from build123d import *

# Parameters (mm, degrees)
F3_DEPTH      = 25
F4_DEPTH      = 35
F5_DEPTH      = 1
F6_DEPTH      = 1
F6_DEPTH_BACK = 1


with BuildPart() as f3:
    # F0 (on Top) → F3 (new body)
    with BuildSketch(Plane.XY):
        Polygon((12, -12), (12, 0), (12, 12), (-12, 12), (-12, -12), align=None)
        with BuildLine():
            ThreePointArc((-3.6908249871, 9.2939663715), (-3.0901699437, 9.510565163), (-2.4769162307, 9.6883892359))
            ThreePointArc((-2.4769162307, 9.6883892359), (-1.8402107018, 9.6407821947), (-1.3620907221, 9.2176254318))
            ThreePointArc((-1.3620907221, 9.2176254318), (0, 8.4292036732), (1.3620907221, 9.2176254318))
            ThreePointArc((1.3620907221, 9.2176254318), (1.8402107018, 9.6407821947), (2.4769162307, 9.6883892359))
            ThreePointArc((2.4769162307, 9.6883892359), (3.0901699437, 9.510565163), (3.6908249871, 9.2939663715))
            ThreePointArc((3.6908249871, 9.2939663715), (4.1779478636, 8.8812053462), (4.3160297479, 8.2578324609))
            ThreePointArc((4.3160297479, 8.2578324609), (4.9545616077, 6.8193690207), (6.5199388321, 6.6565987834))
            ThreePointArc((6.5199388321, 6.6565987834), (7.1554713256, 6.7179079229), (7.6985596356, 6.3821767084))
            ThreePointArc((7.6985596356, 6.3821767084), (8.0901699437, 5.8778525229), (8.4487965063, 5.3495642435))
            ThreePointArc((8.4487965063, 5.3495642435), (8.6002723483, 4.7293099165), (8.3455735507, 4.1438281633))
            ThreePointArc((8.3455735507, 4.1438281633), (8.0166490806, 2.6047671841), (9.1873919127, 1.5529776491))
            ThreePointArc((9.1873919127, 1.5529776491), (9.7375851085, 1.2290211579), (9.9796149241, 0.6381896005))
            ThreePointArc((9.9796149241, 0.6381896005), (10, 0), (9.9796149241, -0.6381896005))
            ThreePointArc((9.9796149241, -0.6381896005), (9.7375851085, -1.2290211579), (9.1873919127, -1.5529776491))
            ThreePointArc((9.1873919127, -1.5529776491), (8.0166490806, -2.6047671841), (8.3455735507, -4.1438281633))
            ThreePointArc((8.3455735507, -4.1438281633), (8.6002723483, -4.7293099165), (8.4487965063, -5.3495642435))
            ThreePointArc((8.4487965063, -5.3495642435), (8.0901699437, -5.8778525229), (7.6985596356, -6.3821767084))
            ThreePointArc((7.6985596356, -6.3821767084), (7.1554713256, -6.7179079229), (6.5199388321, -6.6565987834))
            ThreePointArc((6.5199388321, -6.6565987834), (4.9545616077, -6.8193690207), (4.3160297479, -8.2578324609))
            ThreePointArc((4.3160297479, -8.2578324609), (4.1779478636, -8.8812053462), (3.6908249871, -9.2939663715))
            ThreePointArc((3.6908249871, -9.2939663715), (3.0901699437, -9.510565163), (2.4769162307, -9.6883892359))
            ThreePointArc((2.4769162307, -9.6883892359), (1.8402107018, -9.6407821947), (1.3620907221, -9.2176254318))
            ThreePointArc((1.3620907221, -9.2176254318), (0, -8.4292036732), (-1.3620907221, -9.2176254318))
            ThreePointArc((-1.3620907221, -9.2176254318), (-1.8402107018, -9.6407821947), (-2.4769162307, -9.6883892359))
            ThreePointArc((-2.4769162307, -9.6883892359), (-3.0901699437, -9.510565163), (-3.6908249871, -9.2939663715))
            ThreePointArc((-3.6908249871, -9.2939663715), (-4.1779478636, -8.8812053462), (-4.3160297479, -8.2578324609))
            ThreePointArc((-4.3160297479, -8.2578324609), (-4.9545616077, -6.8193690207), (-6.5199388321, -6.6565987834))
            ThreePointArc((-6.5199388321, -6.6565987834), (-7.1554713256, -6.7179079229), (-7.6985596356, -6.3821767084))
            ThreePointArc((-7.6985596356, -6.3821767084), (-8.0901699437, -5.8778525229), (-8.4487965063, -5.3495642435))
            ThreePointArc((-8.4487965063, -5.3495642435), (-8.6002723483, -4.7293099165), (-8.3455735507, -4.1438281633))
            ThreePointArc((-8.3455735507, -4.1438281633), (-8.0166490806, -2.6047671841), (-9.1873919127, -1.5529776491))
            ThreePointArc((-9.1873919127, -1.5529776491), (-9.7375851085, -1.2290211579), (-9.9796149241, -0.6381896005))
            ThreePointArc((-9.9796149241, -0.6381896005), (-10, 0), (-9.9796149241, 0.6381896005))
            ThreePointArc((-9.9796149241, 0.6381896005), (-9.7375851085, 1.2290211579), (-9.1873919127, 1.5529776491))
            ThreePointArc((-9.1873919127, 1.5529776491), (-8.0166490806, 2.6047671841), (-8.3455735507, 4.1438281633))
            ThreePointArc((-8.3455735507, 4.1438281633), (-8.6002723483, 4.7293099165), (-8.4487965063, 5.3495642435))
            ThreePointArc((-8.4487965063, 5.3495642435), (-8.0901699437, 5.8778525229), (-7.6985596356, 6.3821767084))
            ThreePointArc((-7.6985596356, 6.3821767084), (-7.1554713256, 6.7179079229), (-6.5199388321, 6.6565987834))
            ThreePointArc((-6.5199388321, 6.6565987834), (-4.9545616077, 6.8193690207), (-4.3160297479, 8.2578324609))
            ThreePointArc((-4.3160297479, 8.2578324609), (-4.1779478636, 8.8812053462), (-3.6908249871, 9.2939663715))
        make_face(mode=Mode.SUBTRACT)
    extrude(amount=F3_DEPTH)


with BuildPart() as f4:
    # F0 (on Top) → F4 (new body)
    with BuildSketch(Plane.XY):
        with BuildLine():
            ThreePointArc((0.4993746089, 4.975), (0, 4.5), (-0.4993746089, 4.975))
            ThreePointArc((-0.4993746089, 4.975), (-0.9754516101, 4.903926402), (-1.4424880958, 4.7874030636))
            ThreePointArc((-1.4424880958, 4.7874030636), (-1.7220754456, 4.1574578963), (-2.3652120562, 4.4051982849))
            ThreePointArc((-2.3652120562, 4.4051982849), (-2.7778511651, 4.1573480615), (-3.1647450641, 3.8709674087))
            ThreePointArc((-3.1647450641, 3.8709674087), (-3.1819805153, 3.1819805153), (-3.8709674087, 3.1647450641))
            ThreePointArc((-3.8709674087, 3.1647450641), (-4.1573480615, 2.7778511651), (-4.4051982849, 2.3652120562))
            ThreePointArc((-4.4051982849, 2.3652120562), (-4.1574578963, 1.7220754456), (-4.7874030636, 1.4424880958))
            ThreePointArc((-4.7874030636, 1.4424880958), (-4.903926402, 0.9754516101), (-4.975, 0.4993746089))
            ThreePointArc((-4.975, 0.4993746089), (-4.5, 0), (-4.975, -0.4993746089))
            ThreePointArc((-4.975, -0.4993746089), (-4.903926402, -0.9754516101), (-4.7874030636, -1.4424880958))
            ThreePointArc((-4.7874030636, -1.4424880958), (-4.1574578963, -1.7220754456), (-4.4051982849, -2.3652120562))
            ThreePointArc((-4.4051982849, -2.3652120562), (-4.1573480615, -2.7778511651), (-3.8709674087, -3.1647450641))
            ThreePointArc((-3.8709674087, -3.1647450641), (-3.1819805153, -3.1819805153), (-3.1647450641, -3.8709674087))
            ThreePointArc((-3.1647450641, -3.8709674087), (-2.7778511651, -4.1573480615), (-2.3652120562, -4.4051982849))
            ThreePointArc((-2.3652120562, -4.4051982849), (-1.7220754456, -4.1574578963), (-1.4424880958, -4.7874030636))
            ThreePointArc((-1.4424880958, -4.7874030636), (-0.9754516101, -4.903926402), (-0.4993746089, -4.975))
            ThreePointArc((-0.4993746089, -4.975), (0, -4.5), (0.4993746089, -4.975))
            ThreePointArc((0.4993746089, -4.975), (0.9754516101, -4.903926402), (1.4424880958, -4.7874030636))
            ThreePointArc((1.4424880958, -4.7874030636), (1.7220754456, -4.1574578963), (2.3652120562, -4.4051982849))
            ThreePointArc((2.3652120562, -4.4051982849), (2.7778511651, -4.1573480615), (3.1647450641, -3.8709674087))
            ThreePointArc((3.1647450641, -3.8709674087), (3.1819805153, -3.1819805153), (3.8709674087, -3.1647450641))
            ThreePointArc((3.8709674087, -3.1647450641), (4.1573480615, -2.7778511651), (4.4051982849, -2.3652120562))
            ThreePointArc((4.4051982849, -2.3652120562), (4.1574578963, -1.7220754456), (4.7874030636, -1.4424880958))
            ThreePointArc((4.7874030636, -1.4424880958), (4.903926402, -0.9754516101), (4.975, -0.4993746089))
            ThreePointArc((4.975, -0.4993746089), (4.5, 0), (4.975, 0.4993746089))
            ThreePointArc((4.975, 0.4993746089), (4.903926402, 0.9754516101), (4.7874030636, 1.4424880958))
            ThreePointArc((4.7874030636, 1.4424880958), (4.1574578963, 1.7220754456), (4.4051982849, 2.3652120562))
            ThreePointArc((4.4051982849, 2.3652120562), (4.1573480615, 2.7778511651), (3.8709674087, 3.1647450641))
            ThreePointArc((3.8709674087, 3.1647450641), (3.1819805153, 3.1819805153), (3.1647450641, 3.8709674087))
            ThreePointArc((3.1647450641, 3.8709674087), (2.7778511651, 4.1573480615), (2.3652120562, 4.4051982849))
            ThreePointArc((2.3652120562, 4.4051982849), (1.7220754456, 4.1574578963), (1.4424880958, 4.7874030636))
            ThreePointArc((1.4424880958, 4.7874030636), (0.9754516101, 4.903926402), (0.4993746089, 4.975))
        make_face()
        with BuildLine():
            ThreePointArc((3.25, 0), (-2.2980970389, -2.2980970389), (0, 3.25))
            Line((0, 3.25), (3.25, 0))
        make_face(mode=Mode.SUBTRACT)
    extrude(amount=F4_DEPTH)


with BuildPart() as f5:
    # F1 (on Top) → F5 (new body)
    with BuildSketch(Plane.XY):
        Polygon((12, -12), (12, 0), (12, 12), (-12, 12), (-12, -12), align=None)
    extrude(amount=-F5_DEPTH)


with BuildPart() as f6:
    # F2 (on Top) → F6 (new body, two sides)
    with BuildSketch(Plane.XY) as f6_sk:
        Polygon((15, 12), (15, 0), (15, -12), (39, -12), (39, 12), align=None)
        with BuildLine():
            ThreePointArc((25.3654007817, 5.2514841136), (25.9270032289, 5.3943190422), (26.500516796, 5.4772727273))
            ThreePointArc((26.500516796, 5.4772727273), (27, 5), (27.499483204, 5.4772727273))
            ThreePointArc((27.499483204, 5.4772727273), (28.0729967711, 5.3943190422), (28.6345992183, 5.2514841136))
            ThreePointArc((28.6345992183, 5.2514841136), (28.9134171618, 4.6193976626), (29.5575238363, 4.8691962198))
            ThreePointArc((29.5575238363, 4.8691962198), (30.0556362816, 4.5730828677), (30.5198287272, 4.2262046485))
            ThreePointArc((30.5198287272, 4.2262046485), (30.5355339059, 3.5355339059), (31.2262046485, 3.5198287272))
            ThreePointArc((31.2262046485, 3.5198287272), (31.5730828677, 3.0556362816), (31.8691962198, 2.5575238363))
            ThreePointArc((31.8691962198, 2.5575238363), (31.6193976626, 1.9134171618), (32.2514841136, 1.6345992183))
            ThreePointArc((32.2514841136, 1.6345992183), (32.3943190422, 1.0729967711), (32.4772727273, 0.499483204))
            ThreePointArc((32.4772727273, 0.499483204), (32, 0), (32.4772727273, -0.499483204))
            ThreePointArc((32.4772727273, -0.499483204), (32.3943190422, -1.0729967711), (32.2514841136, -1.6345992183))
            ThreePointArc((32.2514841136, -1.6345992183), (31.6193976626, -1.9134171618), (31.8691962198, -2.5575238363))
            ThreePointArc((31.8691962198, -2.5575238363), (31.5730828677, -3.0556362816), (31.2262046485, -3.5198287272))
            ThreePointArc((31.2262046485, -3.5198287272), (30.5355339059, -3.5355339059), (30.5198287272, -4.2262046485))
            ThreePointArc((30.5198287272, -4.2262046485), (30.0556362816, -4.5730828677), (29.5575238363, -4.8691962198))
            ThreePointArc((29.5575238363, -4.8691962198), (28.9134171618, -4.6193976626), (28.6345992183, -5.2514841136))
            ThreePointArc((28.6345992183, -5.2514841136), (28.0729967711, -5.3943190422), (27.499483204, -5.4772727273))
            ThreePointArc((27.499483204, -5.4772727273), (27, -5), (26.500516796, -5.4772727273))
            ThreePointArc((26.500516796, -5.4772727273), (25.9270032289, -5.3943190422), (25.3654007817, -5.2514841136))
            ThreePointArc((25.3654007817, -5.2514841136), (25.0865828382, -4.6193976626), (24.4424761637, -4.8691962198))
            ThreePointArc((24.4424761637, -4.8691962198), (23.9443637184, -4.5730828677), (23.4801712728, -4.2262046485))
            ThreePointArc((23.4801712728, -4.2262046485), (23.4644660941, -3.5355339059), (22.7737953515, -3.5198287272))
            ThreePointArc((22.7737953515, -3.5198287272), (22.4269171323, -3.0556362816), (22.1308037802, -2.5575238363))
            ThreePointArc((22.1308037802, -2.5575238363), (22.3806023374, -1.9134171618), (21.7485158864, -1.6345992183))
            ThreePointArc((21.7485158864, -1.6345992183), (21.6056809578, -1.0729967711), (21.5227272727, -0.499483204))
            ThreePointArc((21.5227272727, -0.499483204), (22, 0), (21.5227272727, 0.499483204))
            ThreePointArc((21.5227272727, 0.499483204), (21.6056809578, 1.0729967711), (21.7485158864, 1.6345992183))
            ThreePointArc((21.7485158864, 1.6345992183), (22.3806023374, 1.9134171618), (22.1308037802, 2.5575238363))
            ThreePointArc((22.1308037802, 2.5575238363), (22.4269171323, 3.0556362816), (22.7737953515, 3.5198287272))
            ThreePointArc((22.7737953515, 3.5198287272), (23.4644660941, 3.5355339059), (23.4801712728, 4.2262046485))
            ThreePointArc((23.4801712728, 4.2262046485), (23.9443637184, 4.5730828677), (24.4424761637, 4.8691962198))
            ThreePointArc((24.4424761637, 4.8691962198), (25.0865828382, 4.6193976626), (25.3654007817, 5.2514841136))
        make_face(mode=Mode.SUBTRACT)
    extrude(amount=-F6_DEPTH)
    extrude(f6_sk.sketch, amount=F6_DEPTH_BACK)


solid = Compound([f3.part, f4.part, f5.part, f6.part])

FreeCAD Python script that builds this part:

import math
import FreeCAD as App
import Part
import Sketcher
Q = App.Units.Quantity

doc = App.newDocument("Part")
body = doc.addObject("PartDesign::Body", "Body")

# Sketch on XY plane
sketch1 = body.newObject("Sketcher::SketchObject", "Sketch")
sketch1.AttachmentSupport = (doc.getObject("XY_Plane"), [""])
sketch1.MapMode = "FlatFace"
sketch1.addGeometry([
    Part.LineSegment(App.Vector(12, -12, 0), App.Vector(12, 12, 0)),  # 0
    Part.LineSegment(App.Vector(12, 12, 0), App.Vector(-12, 12, 0)),  # 1
    Part.LineSegment(App.Vector(-12, 12, 0), App.Vector(-12, -12, 0)),  # 2
    Part.LineSegment(App.Vector(-12, -12, 0), App.Vector(12, -12, 0)),  # 3
    Part.ArcOfCircle(Part.Circle(App.Vector(-3.321742, 8.36457, 0), App.Vector(0, 0, 1), 1), math.radians(111.659044), math.radians(186.127268)),  # 4
    Part.ArcOfCircle(Part.Circle(App.Vector(0, 0, 0), App.Vector(0, 0, 1), 10), math.radians(104.340956), math.radians(111.659044)),  # 5
    Part.ArcOfCircle(Part.Circle(App.Vector(-2.229225, 8.71955, 0), App.Vector(0, 0, 1), 1), math.radians(29.872732), math.radians(104.340956)),  # 6
    Part.ArcOfCircle(Part.Circle(App.Vector(0, 10, 0), App.Vector(0, 0, 1), 1.570796), math.radians(-150.127268), math.radians(-29.872732)),  # 7
    Part.ArcOfCircle(Part.Circle(App.Vector(2.229225, 8.71955, 0), App.Vector(0, 0, 1), 1), math.radians(75.659044), math.radians(150.127268)),  # 8
    Part.ArcOfCircle(Part.Circle(App.Vector(0, 0, 0), App.Vector(0, 0, 1), 10), math.radians(68.340956), math.radians(75.659044)),  # 9
    Part.ArcOfCircle(Part.Circle(App.Vector(3.321742, 8.36457, 0), App.Vector(0, 0, 1), 1), math.radians(-6.127268), math.radians(68.340956)),  # 10
    Part.ArcOfCircle(Part.Circle(App.Vector(5.877853, 8.09017, 0), App.Vector(0, 0, 1), 1.570796), math.radians(173.872732), math.radians(294.127268)),  # 11
    Part.ArcOfCircle(Part.Circle(App.Vector(6.928704, 5.743959, 0), App.Vector(0, 0, 1), 1), math.radians(39.659044), math.radians(114.127268)),  # 12
    Part.ArcOfCircle(Part.Circle(App.Vector(0, 0, 0), App.Vector(0, 0, 1), 10), math.radians(32.340956), math.radians(39.659044)),  # 13
    Part.ArcOfCircle(Part.Circle(App.Vector(7.603917, 4.814608, 0), App.Vector(0, 0, 1), 1), math.radians(-42.127268), math.radians(32.340956)),  # 14
    Part.ArcOfCircle(Part.Circle(App.Vector(9.510565, 3.09017, 0), App.Vector(0, 0, 1), 1.570796), math.radians(137.872732), math.radians(258.127268)),  # 15
    Part.ArcOfCircle(Part.Circle(App.Vector(8.981653, 0.574371, 0), App.Vector(0, 0, 1), 1), math.radians(3.659044), math.radians(78.127268)),  # 16
    Part.ArcOfCircle(Part.Circle(App.Vector(0, 0, 0), App.Vector(0, 0, 1), 10), math.radians(-3.659044), math.radians(3.659044)),  # 17
    Part.ArcOfCircle(Part.Circle(App.Vector(8.981653, -0.574371, 0), App.Vector(0, 0, 1), 1), math.radians(-78.127268), math.radians(-3.659044)),  # 18
    Part.ArcOfCircle(Part.Circle(App.Vector(9.510565, -3.09017, 0), App.Vector(0, 0, 1), 1.570796), math.radians(101.872732), math.radians(222.127268)),  # 19
    Part.ArcOfCircle(Part.Circle(App.Vector(7.603917, -4.814608, 0), App.Vector(0, 0, 1), 1), math.radians(-32.340956), math.radians(42.127268)),  # 20
    Part.ArcOfCircle(Part.Circle(App.Vector(0, 0, 0), App.Vector(0, 0, 1), 10), math.radians(-39.659044), math.radians(-32.340956)),  # 21
    Part.ArcOfCircle(Part.Circle(App.Vector(6.928704, -5.743959, 0), App.Vector(0, 0, 1), 1), math.radians(-114.127268), math.radians(-39.659044)),  # 22
    Part.ArcOfCircle(Part.Circle(App.Vector(5.877853, -8.09017, 0), App.Vector(0, 0, 1), 1.570796), math.radians(65.872732), math.radians(186.127268)),  # 23
    Part.ArcOfCircle(Part.Circle(App.Vector(3.321742, -8.36457, 0), App.Vector(0, 0, 1), 1), math.radians(-68.340956), math.radians(6.127268)),  # 24
    Part.ArcOfCircle(Part.Circle(App.Vector(0, 0, 0), App.Vector(0, 0, 1), 10), math.radians(-75.659044), math.radians(-68.340956)),  # 25
    Part.ArcOfCircle(Part.Circle(App.Vector(2.229225, -8.71955, 0), App.Vector(0, 0, 1), 1), math.radians(-150.127268), math.radians(-75.659044)),  # 26
    Part.ArcOfCircle(Part.Circle(App.Vector(0, -10, 0), App.Vector(0, 0, 1), 1.570796), math.radians(29.872732), math.radians(150.127268)),  # 27
    Part.ArcOfCircle(Part.Circle(App.Vector(-2.229225, -8.71955, 0), App.Vector(0, 0, 1), 1), math.radians(-104.340956), math.radians(-29.872732)),  # 28
    Part.ArcOfCircle(Part.Circle(App.Vector(0, 0, 0), App.Vector(0, 0, 1), 10), math.radians(-111.659044), math.radians(-104.340956)),  # 29
    Part.ArcOfCircle(Part.Circle(App.Vector(-3.321742, -8.36457, 0), App.Vector(0, 0, 1), 1), math.radians(173.872732), math.radians(248.340956)),  # 30
    Part.ArcOfCircle(Part.Circle(App.Vector(-5.877853, -8.09017, 0), App.Vector(0, 0, 1), 1.570796), math.radians(-6.127268), math.radians(114.127268)),  # 31
    Part.ArcOfCircle(Part.Circle(App.Vector(-6.928704, -5.743959, 0), App.Vector(0, 0, 1), 1), math.radians(-140.340956), math.radians(-65.872732)),  # 32
    Part.ArcOfCircle(Part.Circle(App.Vector(0, 0, 0), App.Vector(0, 0, 1), 10), math.radians(-147.659044), math.radians(-140.340956)),  # 33
    Part.ArcOfCircle(Part.Circle(App.Vector(-7.603917, -4.814608, 0), App.Vector(0, 0, 1), 1), math.radians(137.872732), math.radians(212.340956)),  # 34
    Part.ArcOfCircle(Part.Circle(App.Vector(-9.510565, -3.09017, 0), App.Vector(0, 0, 1), 1.570796), math.radians(-42.127268), math.radians(78.127268)),  # 35
    Part.ArcOfCircle(Part.Circle(App.Vector(-8.981653, -0.574371, 0), App.Vector(0, 0, 1), 1), math.radians(-176.340956), math.radians(-101.872732)),  # 36
    Part.ArcOfCircle(Part.Circle(App.Vector(0, 0, 0), App.Vector(0, 0, 1), 10), math.radians(176.340956), math.radians(183.659044)),  # 37
    Part.ArcOfCircle(Part.Circle(App.Vector(-8.981653, 0.574371, 0), App.Vector(0, 0, 1), 1), math.radians(101.872732), math.radians(176.340956)),  # 38
    Part.ArcOfCircle(Part.Circle(App.Vector(-9.510565, 3.09017, 0), App.Vector(0, 0, 1), 1.570796), math.radians(-78.127268), math.radians(42.127268)),  # 39
    Part.ArcOfCircle(Part.Circle(App.Vector(-7.603917, 4.814608, 0), App.Vector(0, 0, 1), 1), math.radians(147.659044), math.radians(222.127268)),  # 40
    Part.ArcOfCircle(Part.Circle(App.Vector(0, 0, 0), App.Vector(0, 0, 1), 10), math.radians(140.340956), math.radians(147.659044)),  # 41
    Part.ArcOfCircle(Part.Circle(App.Vector(-6.928704, 5.743959, 0), App.Vector(0, 0, 1), 1), math.radians(65.872732), math.radians(140.340956)),  # 42
    Part.ArcOfCircle(Part.Circle(App.Vector(-5.877853, 8.09017, 0), App.Vector(0, 0, 1), 1.570796), math.radians(-114.127268), math.radians(6.127268)),  # 43
], False)
sketch1.addConstraint([
    Sketcher.Constraint("Coincident", 0, 2, 1, 1),
    Sketcher.Constraint("Coincident", 1, 2, 2, 1),
    Sketcher.Constraint("Coincident", 2, 2, 3, 1),
    Sketcher.Constraint("Coincident", 3, 2, 0, 1),
    Sketcher.Constraint("Tangent", 4, 1, 5, 2),
    Sketcher.Constraint("Tangent", 5, 1, 6, 2),
    Sketcher.Constraint("Tangent", 6, 1, 7, 1),
    Sketcher.Constraint("Tangent", 7, 2, 8, 2),
    Sketcher.Constraint("Tangent", 8, 1, 9, 2),
    Sketcher.Constraint("Tangent", 9, 1, 10, 2),
    Sketcher.Constraint("Tangent", 10, 1, 11, 1),
    Sketcher.Constraint("Tangent", 11, 2, 12, 2),
    Sketcher.Constraint("Tangent", 12, 1, 13, 2),
    Sketcher.Constraint("Tangent", 13, 1, 14, 2),
    Sketcher.Constraint("Tangent", 14, 1, 15, 1),
    Sketcher.Constraint("Tangent", 15, 2, 16, 2),
    Sketcher.Constraint("Tangent", 16, 1, 17, 2),
    Sketcher.Constraint("Tangent", 17, 1, 18, 2),
    Sketcher.Constraint("Tangent", 18, 1, 19, 1),
    Sketcher.Constraint("Tangent", 19, 2, 20, 2),
    Sketcher.Constraint("Tangent", 20, 1, 21, 2),
    Sketcher.Constraint("Tangent", 21, 1, 22, 2),
    Sketcher.Constraint("Tangent", 22, 1, 23, 1),
    Sketcher.Constraint("Tangent", 23, 2, 24, 2),
    Sketcher.Constraint("Tangent", 24, 1, 25, 2),
    Sketcher.Constraint("Tangent", 25, 1, 26, 2),
    Sketcher.Constraint("Tangent", 26, 1, 27, 1),
    Sketcher.Constraint("Tangent", 27, 2, 28, 2),
    Sketcher.Constraint("Tangent", 28, 1, 29, 2),
    Sketcher.Constraint("Tangent", 29, 1, 30, 2),
    Sketcher.Constraint("Tangent", 30, 1, 31, 1),
    Sketcher.Constraint("Tangent", 31, 2, 32, 2),
    Sketcher.Constraint("Tangent", 32, 1, 33, 2),
    Sketcher.Constraint("Tangent", 33, 1, 34, 2),
    Sketcher.Constraint("Tangent", 34, 1, 35, 1),
    Sketcher.Constraint("Tangent", 35, 2, 36, 2),
    Sketcher.Constraint("Tangent", 36, 1, 37, 2),
    Sketcher.Constraint("Tangent", 37, 1, 38, 2),
    Sketcher.Constraint("Tangent", 38, 1, 39, 1),
    Sketcher.Constraint("Tangent", 39, 2, 40, 2),
    Sketcher.Constraint("Tangent", 40, 1, 41, 2),
    Sketcher.Constraint("Tangent", 41, 1, 42, 2),
    Sketcher.Constraint("Tangent", 42, 1, 43, 1),
    Sketcher.Constraint("Tangent", 43, 2, 4, 2),
    Sketcher.Constraint("Vertical", 0),
    Sketcher.Constraint("Horizontal", 1),
    Sketcher.Constraint("Vertical", 2),
    Sketcher.Constraint("Horizontal", 3),
    Sketcher.Constraint("Coincident", 5, 3, -1, 1),
    Sketcher.Constraint("Coincident", 9, 3, -1, 1),
    Sketcher.Constraint("Coincident", 13, 3, -1, 1),
    Sketcher.Constraint("Coincident", 17, 3, -1, 1),
    Sketcher.Constraint("Coincident", 21, 3, -1, 1),
    Sketcher.Constraint("Coincident", 25, 3, -1, 1),
    Sketcher.Constraint("Coincident", 29, 3, -1, 1),
    Sketcher.Constraint("Coincident", 33, 3, -1, 1),
    Sketcher.Constraint("Coincident", 37, 3, -1, 1),
    Sketcher.Constraint("Coincident", 41, 3, -1, 1),
    Sketcher.Constraint("Equal", 4, 6),
    Sketcher.Constraint("Equal", 6, 8),
    Sketcher.Constraint("Equal", 5, 9),
    Sketcher.Constraint("Equal", 8, 10),
    Sketcher.Constraint("Equal", 7, 11),
    Sketcher.Constraint("Equal", 10, 12),
    Sketcher.Constraint("Equal", 9, 13),
    Sketcher.Constraint("Equal", 12, 14),
    Sketcher.Constraint("Equal", 11, 15),
    Sketcher.Constraint("Equal", 14, 16),
    Sketcher.Constraint("Equal", 13, 17),
    Sketcher.Constraint("Equal", 16, 18),
    Sketcher.Constraint("Equal", 15, 19),
    Sketcher.Constraint("Equal", 18, 20),
    Sketcher.Constraint("Equal", 17, 21),
    Sketcher.Constraint("Equal", 20, 22),
    Sketcher.Constraint("Equal", 19, 23),
    Sketcher.Constraint("Equal", 22, 24),
    Sketcher.Constraint("Equal", 21, 25),
    Sketcher.Constraint("Equal", 24, 26),
    Sketcher.Constraint("Equal", 23, 27),
    Sketcher.Constraint("Equal", 26, 28),
    Sketcher.Constraint("Equal", 25, 29),
    Sketcher.Constraint("Equal", 28, 30),
    Sketcher.Constraint("Equal", 27, 31),
    Sketcher.Constraint("Equal", 30, 32),
    Sketcher.Constraint("Equal", 29, 33),
    Sketcher.Constraint("Equal", 32, 34),
    Sketcher.Constraint("Equal", 31, 35),
    Sketcher.Constraint("Equal", 34, 36),
    Sketcher.Constraint("Equal", 33, 37),
    Sketcher.Constraint("Equal", 36, 38),
    Sketcher.Constraint("Equal", 35, 39),
    Sketcher.Constraint("Equal", 38, 40),
    Sketcher.Constraint("Equal", 37, 41),
    Sketcher.Constraint("Equal", 40, 42),
    Sketcher.Constraint("Equal", 39, 43),
    Sketcher.Constraint("Symmetric", 7, 3, 27, 3, -1, 1),
    Sketcher.Constraint("Symmetric", 11, 3, 31, 3, -1, 1),
    Sketcher.Constraint("Symmetric", 15, 3, 35, 3, -1, 1),
    Sketcher.Constraint("Symmetric", 19, 3, 39, 3, -1, 1),
    Sketcher.Constraint("Symmetric", 23, 3, 43, 3, -1, 1),
    Sketcher.Constraint("Symmetric", 0, 2, 2, 2, -1, 1),
    Sketcher.Constraint("Symmetric", 23, 3, 31, 3, -2),
    Sketcher.Constraint("Symmetric", 19, 3, 35, 3, -2),
    Sketcher.Constraint("PointOnObject", 7, 3, -2),
    Sketcher.Constraint("Equal", 3, 0),
    Sketcher.Constraint("Radius", 4, Q("1 mm")),
    Sketcher.Constraint("Radius", 5, Q("10 mm")),
    Sketcher.Constraint("DistanceX", 1, 2, 1, 1, Q("24 mm")),
    Sketcher.Constraint("DistanceY", -1, 1, 7, 3, Q("10 mm")),
    Sketcher.Constraint("Radius", 7, Q("1.570796 mm")),
    Sketcher.Constraint("DistanceY", -1, 1, 11, 2, Q("6.656599 mm")),
    Sketcher.Constraint("DistanceY", -1, 1, 4, 3, Q("8.36457 mm")),
    Sketcher.Constraint("DistanceY", -1, 1, 15, 3, Q("3.09017 mm")),
    Sketcher.Constraint("DistanceY", -1, 1, 16, 3, Q("0.574371 mm")),
])
pad1 = body.newObject("PartDesign::Pad", "Pad")
pad1.Profile = sketch1
pad1.Length = 25
body2 = doc.addObject("PartDesign::Body", "Body001")

# Sketch on XY plane
sketch2 = body2.newObject("Sketcher::SketchObject", "Sketch001")
sketch2.AttachmentSupport = (doc.getObject("XY_Plane001"), [""])
sketch2.MapMode = "FlatFace"
sketch2.addGeometry([
    Part.ArcOfCircle(Part.Circle(App.Vector(0, 5, 0), App.Vector(0, 0, 1), 0.5), math.radians(-177.134016), math.radians(-2.865984)),  # 0
    Part.ArcOfCircle(Part.Circle(App.Vector(0, 0, 0), App.Vector(0, 0, 1), 5), math.radians(95.731968), math.radians(106.768032)),  # 1
    Part.ArcOfCircle(Part.Circle(App.Vector(-1.913417, 4.619398, 0), App.Vector(0, 0, 1), 0.5), math.radians(-154.634016), math.radians(19.634016)),  # 2
    Part.ArcOfCircle(Part.Circle(App.Vector(0, 0, 0), App.Vector(0, 0, 1), 5), math.radians(118.231968), math.radians(129.268032)),  # 3
    Part.ArcOfCircle(Part.Circle(App.Vector(-3.535534, 3.535534, 0), App.Vector(0, 0, 1), 0.5), math.radians(-132.134016), math.radians(42.134016)),  # 4
    Part.ArcOfCircle(Part.Circle(App.Vector(0, 0, 0), App.Vector(0, 0, 1), 5), math.radians(140.731968), math.radians(151.768032)),  # 5
    Part.ArcOfCircle(Part.Circle(App.Vector(-4.619398, 1.913417, 0), App.Vector(0, 0, 1), 0.5), math.radians(-109.634016), math.radians(64.634016)),  # 6
    Part.ArcOfCircle(Part.Circle(App.Vector(0, 0, 0), App.Vector(0, 0, 1), 5), math.radians(163.231968), math.radians(174.268032)),  # 7
    Part.ArcOfCircle(Part.Circle(App.Vector(-5, 0, 0), App.Vector(0, 0, 1), 0.5), math.radians(-87.134016), math.radians(87.134016)),  # 8
    Part.ArcOfCircle(Part.Circle(App.Vector(0, 0, 0), App.Vector(0, 0, 1), 5), math.radians(-174.268032), math.radians(-163.231968)),  # 9
    Part.ArcOfCircle(Part.Circle(App.Vector(-4.619398, -1.913417, 0), App.Vector(0, 0, 1), 0.5), math.radians(-64.634016), math.radians(109.634016)),  # 10
    Part.ArcOfCircle(Part.Circle(App.Vector(0, 0, 0), App.Vector(0, 0, 1), 5), math.radians(-151.768032), math.radians(-140.731968)),  # 11
    Part.ArcOfCircle(Part.Circle(App.Vector(-3.535534, -3.535534, 0), App.Vector(0, 0, 1), 0.5), math.radians(-42.134016), math.radians(132.134016)),  # 12
    Part.ArcOfCircle(Part.Circle(App.Vector(0, 0, 0), App.Vector(0, 0, 1), 5), math.radians(-129.268032), math.radians(-118.231968)),  # 13
    Part.ArcOfCircle(Part.Circle(App.Vector(-1.913417, -4.619398, 0), App.Vector(0, 0, 1), 0.5), math.radians(-19.634016), math.radians(154.634016)),  # 14
    Part.ArcOfCircle(Part.Circle(App.Vector(0, 0, 0), App.Vector(0, 0, 1), 5), math.radians(-106.768032), math.radians(-95.731968)),  # 15
    Part.ArcOfCircle(Part.Circle(App.Vector(0, -5, 0), App.Vector(0, 0, 1), 0.5), math.radians(2.865984), math.radians(177.134016)),  # 16
    Part.ArcOfCircle(Part.Circle(App.Vector(0, 0, 0), App.Vector(0, 0, 1), 5), math.radians(-84.268032), math.radians(-73.231968)),  # 17
    Part.ArcOfCircle(Part.Circle(App.Vector(1.913417, -4.619398, 0), App.Vector(0, 0, 1), 0.5), math.radians(25.365984), math.radians(199.634016)),  # 18
    Part.ArcOfCircle(Part.Circle(App.Vector(0, 0, 0), App.Vector(0, 0, 1), 5), math.radians(-61.768032), math.radians(-50.731968)),  # 19
    Part.ArcOfCircle(Part.Circle(App.Vector(3.535534, -3.535534, 0), App.Vector(0, 0, 1), 0.5), math.radians(47.865984), math.radians(222.134016)),  # 20
    Part.ArcOfCircle(Part.Circle(App.Vector(0, 0, 0), App.Vector(0, 0, 1), 5), math.radians(-39.268032), math.radians(-28.231968)),  # 21
    Part.ArcOfCircle(Part.Circle(App.Vector(4.619398, -1.913417, 0), App.Vector(0, 0, 1), 0.5), math.radians(70.365984), math.radians(244.634016)),  # 22
    Part.ArcOfCircle(Part.Circle(App.Vector(0, 0, 0), App.Vector(0, 0, 1), 5), math.radians(-16.768032), math.radians(-5.731968)),  # 23
    Part.ArcOfCircle(Part.Circle(App.Vector(5, 0, 0), App.Vector(0, 0, 1), 0.5), math.radians(92.865984), math.radians(267.134016)),  # 24
    Part.ArcOfCircle(Part.Circle(App.Vector(0, 0, 0), App.Vector(0, 0, 1), 5), math.radians(5.731968), math.radians(16.768032)),  # 25
    Part.ArcOfCircle(Part.Circle(App.Vector(4.619398, 1.913417, 0), App.Vector(0, 0, 1), 0.5), math.radians(115.365984), math.radians(289.634016)),  # 26
    Part.ArcOfCircle(Part.Circle(App.Vector(0, 0, 0), App.Vector(0, 0, 1), 5), math.radians(28.231968), math.radians(39.268032)),  # 27
    Part.ArcOfCircle(Part.Circle(App.Vector(3.535534, 3.535534, 0), App.Vector(0, 0, 1), 0.5), math.radians(137.865984), math.radians(312.134016)),  # 28
    Part.ArcOfCircle(Part.Circle(App.Vector(0, 0, 0), App.Vector(0, 0, 1), 5), math.radians(50.731968), math.radians(61.768032)),  # 29
    Part.ArcOfCircle(Part.Circle(App.Vector(1.913417, 4.619398, 0), App.Vector(0, 0, 1), 0.5), math.radians(160.365984), math.radians(334.634016)),  # 30
    Part.ArcOfCircle(Part.Circle(App.Vector(0, 0, 0), App.Vector(0, 0, 1), 5), math.radians(73.231968), math.radians(84.268032)),  # 31
    Part.LineSegment(App.Vector(0, 3.25, 0), App.Vector(3.25, 0, 0)),  # 32
    Part.ArcOfCircle(Part.Circle(App.Vector(0, 0, 0), App.Vector(0, 0, 1), 3.25), math.radians(90), math.radians(360)),  # 33
], False)
sketch2.addConstraint([
    Sketcher.Constraint("Coincident", 0, 1, 1, 1),
    Sketcher.Constraint("Coincident", 1, 2, 2, 2),
    Sketcher.Constraint("Coincident", 2, 1, 3, 1),
    Sketcher.Constraint("Coincident", 3, 2, 4, 2),
    Sketcher.Constraint("Coincident", 4, 1, 5, 1),
    Sketcher.Constraint("Coincident", 5, 2, 6, 2),
    Sketcher.Constraint("Coincident", 6, 1, 7, 1),
    Sketcher.Constraint("Coincident", 7, 2, 8, 2),
    Sketcher.Constraint("Coincident", 8, 1, 9, 1),
    Sketcher.Constraint("Coincident", 9, 2, 10, 2),
    Sketcher.Constraint("Coincident", 10, 1, 11, 1),
    Sketcher.Constraint("Coincident", 11, 2, 12, 2),
    Sketcher.Constraint("Coincident", 12, 1, 13, 1),
    Sketcher.Constraint("Coincident", 13, 2, 14, 2),
    Sketcher.Constraint("Coincident", 14, 1, 15, 1),
    Sketcher.Constraint("Coincident", 15, 2, 16, 2),
    Sketcher.Constraint("Coincident", 16, 1, 17, 1),
    Sketcher.Constraint("Coincident", 17, 2, 18, 2),
    Sketcher.Constraint("Coincident", 18, 1, 19, 1),
    Sketcher.Constraint("Coincident", 19, 2, 20, 2),
    Sketcher.Constraint("Coincident", 20, 1, 21, 1),
    Sketcher.Constraint("Coincident", 21, 2, 22, 2),
    Sketcher.Constraint("Coincident", 22, 1, 23, 1),
    Sketcher.Constraint("Coincident", 23, 2, 24, 2),
    Sketcher.Constraint("Coincident", 24, 1, 25, 1),
    Sketcher.Constraint("Coincident", 25, 2, 26, 2),
    Sketcher.Constraint("Coincident", 26, 1, 27, 1),
    Sketcher.Constraint("Coincident", 27, 2, 28, 2),
    Sketcher.Constraint("Coincident", 28, 1, 29, 1),
    Sketcher.Constraint("Coincident", 29, 2, 30, 2),
    Sketcher.Constraint("Coincident", 30, 1, 31, 1),
    Sketcher.Constraint("Coincident", 31, 2, 0, 2),
    Sketcher.Constraint("Coincident", 32, 1, 33, 1),
    Sketcher.Constraint("Coincident", 33, 2, 32, 2),
    Sketcher.Constraint("Coincident", 1, 3, -1, 1),
    Sketcher.Constraint("Coincident", 3, 3, -1, 1),
    Sketcher.Constraint("Coincident", 5, 3, -1, 1),
    Sketcher.Constraint("Coincident", 7, 3, -1, 1),
    Sketcher.Constraint("Coincident", 9, 3, -1, 1),
    Sketcher.Constraint("Coincident", 11, 3, -1, 1),
    Sketcher.Constraint("Coincident", 13, 3, -1, 1),
    Sketcher.Constraint("Coincident", 15, 3, -1, 1),
    Sketcher.Constraint("Coincident", 17, 3, -1, 1),
    Sketcher.Constraint("Coincident", 19, 3, -1, 1),
    Sketcher.Constraint("Coincident", 21, 3, -1, 1),
    Sketcher.Constraint("Coincident", 23, 3, -1, 1),
    Sketcher.Constraint("Coincident", 25, 3, -1, 1),
    Sketcher.Constraint("Coincident", 27, 3, -1, 1),
    Sketcher.Constraint("Coincident", 29, 3, -1, 1),
    Sketcher.Constraint("Coincident", 31, 3, -1, 1),
    Sketcher.Constraint("Coincident", 33, 3, -1, 1),
    Sketcher.Constraint("Equal", 0, 2),
    Sketcher.Constraint("Equal", 1, 3),
    Sketcher.Constraint("Equal", 2, 4),
    Sketcher.Constraint("Equal", 3, 5),
    Sketcher.Constraint("Equal", 4, 6),
    Sketcher.Constraint("Equal", 5, 7),
    Sketcher.Constraint("Equal", 6, 8),
    Sketcher.Constraint("Equal", 7, 9),
    Sketcher.Constraint("Equal", 8, 10),
    Sketcher.Constraint("Equal", 9, 11),
    Sketcher.Constraint("Equal", 10, 12),
    Sketcher.Constraint("Equal", 11, 13),
    Sketcher.Constraint("Equal", 12, 14),
    Sketcher.Constraint("Equal", 13, 15),
    Sketcher.Constraint("Equal", 14, 16),
    Sketcher.Constraint("Equal", 15, 17),
    Sketcher.Constraint("Equal", 16, 18),
    Sketcher.Constraint("Equal", 17, 19),
    Sketcher.Constraint("Equal", 18, 20),
    Sketcher.Constraint("Equal", 19, 21),
    Sketcher.Constraint("Equal", 20, 22),
    Sketcher.Constraint("Equal", 21, 23),
    Sketcher.Constraint("Equal", 22, 24),
    Sketcher.Constraint("Equal", 23, 25),
    Sketcher.Constraint("Equal", 24, 26),
    Sketcher.Constraint("Equal", 25, 27),
    Sketcher.Constraint("Equal", 26, 28),
    Sketcher.Constraint("Equal", 27, 29),
    Sketcher.Constraint("Equal", 28, 30),
    Sketcher.Constraint("Equal", 29, 31),
    Sketcher.Constraint("Symmetric", 0, 3, 16, 3, -1, 1),
    Sketcher.Constraint("Symmetric", 2, 3, 18, 3, -1, 1),
    Sketcher.Constraint("Symmetric", 4, 3, 20, 3, -1, 1),
    Sketcher.Constraint("Symmetric", 6, 3, 22, 3, -1, 1),
    Sketcher.Constraint("Symmetric", 8, 3, 24, 3, -1, 1),
    Sketcher.Constraint("Symmetric", 10, 3, 26, 3, -1, 1),
    Sketcher.Constraint("Symmetric", 12, 3, 28, 3, -1, 1),
    Sketcher.Constraint("Symmetric", 14, 3, 30, 3, -1, 1),
    Sketcher.Constraint("Symmetric", 14, 3, 18, 3, -2),
    Sketcher.Constraint("Symmetric", 12, 3, 20, 3, -2),
    Sketcher.Constraint("Symmetric", 10, 3, 22, 3, -2),
    Sketcher.Constraint("PointOnObject", 0, 3, -2),
    Sketcher.Constraint("PointOnObject", 8, 3, -1),
    Sketcher.Constraint("PointOnObject", 32, 1, -2),
    Sketcher.Constraint("PointOnObject", 33, 2, -1),
    Sketcher.Constraint("Radius", 1, Q("5 mm")),
    Sketcher.Constraint("Radius", 0, Q("0.5 mm")),
    Sketcher.Constraint("Radius", 33, Q("3.25 mm")),
    Sketcher.Constraint("DistanceY", -1, 1, 0, 3, Q("5 mm")),
    Sketcher.Constraint("DistanceX", 8, 3, -1, 1, Q("5 mm")),
    Sketcher.Constraint("DistanceY", -1, 1, 2, 1, Q("4.405198 mm")),
    Sketcher.Constraint("DistanceX", 5, 2, -1, 1, Q("4.405198 mm")),
    Sketcher.Constraint("DistanceX", 1, 2, -1, 1, Q("1.442488 mm")),
    Sketcher.Constraint("DistanceY", -1, 1, 6, 1, Q("1.442488 mm")),
    Sketcher.Constraint("DistanceX", 4, 3, -1, 1, Q("3.535534 mm")),
    Sketcher.Constraint("DistanceY", -1, 1, 4, 3, Q("3.535534 mm")),
])
pad2 = body2.newObject("PartDesign::Pad", "Pad001")
pad2.Profile = sketch2
pad2.Length = 35
body3 = doc.addObject("PartDesign::Body", "Body002")

# Sketch on XY plane
sketch3 = body3.newObject("Sketcher::SketchObject", "Sketch002")
sketch3.AttachmentSupport = (doc.getObject("XY_Plane002"), [""])
sketch3.MapMode = "FlatFace"
sketch3.addGeometry([
    Part.LineSegment(App.Vector(12, -12, 0), App.Vector(12, 12, 0)),
    Part.LineSegment(App.Vector(12, 12, 0), App.Vector(-12, 12, 0)),
    Part.LineSegment(App.Vector(-12, 12, 0), App.Vector(-12, -12, 0)),
    Part.LineSegment(App.Vector(-12, -12, 0), App.Vector(12, -12, 0)),
], False)
sketch3.addConstraint([
    Sketcher.Constraint("Coincident", 0, 2, 1, 1),
    Sketcher.Constraint("Coincident", 1, 2, 2, 1),
    Sketcher.Constraint("Coincident", 2, 2, 3, 1),
    Sketcher.Constraint("Coincident", 3, 2, 0, 1),
    Sketcher.Constraint("Vertical", 0),
    Sketcher.Constraint("Horizontal", 1),
    Sketcher.Constraint("Vertical", 2),
    Sketcher.Constraint("Horizontal", 3),
    Sketcher.Constraint("Symmetric", 0, 2, 2, 2, -1, 1),
    Sketcher.Constraint("Equal", 3, 0),
    Sketcher.Constraint("DistanceX", 1, 2, 1, 1, Q("24 mm")),
])
pad3 = body3.newObject("PartDesign::Pad", "Pad002")
pad3.Profile = sketch3
pad3.Length = 1
pad3.Reversed = True
body4 = doc.addObject("PartDesign::Body", "Body003")

# Sketch on XY plane
sketch4 = body4.newObject("Sketcher::SketchObject", "Sketch003")
sketch4.AttachmentSupport = (doc.getObject("XY_Plane003"), [""])
sketch4.MapMode = "FlatFace"
sketch4.addGeometry([
    Part.LineSegment(App.Vector(15, 12, 0), App.Vector(15, -12, 0)),  # 0
    Part.LineSegment(App.Vector(15, -12, 0), App.Vector(39, -12, 0)),  # 1
    Part.LineSegment(App.Vector(39, -12, 0), App.Vector(39, 12, 0)),  # 2
    Part.LineSegment(App.Vector(39, 12, 0), App.Vector(15, 12, 0)),  # 3
    Part.ArcOfCircle(Part.Circle(App.Vector(24.895241, 5.081337, 0), App.Vector(0, 0, 1), 0.5), math.radians(-154.894749), math.radians(19.894749)),  # 4
    Part.ArcOfCircle(Part.Circle(App.Vector(27, 0, 0), App.Vector(0, 0, 1), 5.5), math.radians(95.210503), math.radians(107.289497)),  # 5
    Part.ArcOfCircle(Part.Circle(App.Vector(27, 5.5, 0), App.Vector(0, 0, 1), 0.5), math.radians(-177.394749), math.radians(-2.605251)),  # 6
    Part.ArcOfCircle(Part.Circle(App.Vector(27, 0, 0), App.Vector(0, 0, 1), 5.5), math.radians(72.710503), math.radians(84.789497)),  # 7
    Part.ArcOfCircle(Part.Circle(App.Vector(29.104759, 5.081337, 0), App.Vector(0, 0, 1), 0.5), math.radians(160.105251), math.radians(334.894749)),  # 8
    Part.ArcOfCircle(Part.Circle(App.Vector(27, 0, 0), App.Vector(0, 0, 1), 5.5), math.radians(50.210503), math.radians(62.289497)),  # 9
    Part.ArcOfCircle(Part.Circle(App.Vector(30.889087, 3.889087, 0), App.Vector(0, 0, 1), 0.5), math.radians(137.605251), math.radians(312.394749)),  # 10
    Part.ArcOfCircle(Part.Circle(App.Vector(27, 0, 0), App.Vector(0, 0, 1), 5.5), math.radians(27.710503), math.radians(39.789497)),  # 11
    Part.ArcOfCircle(Part.Circle(App.Vector(32.081337, 2.104759, 0), App.Vector(0, 0, 1), 0.5), math.radians(115.105251), math.radians(289.894749)),  # 12
    Part.ArcOfCircle(Part.Circle(App.Vector(27, 0, 0), App.Vector(0, 0, 1), 5.5), math.radians(5.210503), math.radians(17.289497)),  # 13
    Part.ArcOfCircle(Part.Circle(App.Vector(32.5, 0, 0), App.Vector(0, 0, 1), 0.5), math.radians(92.605251), math.radians(267.394749)),  # 14
    Part.ArcOfCircle(Part.Circle(App.Vector(27, 0, 0), App.Vector(0, 0, 1), 5.5), math.radians(-17.289497), math.radians(-5.210503)),  # 15
    Part.ArcOfCircle(Part.Circle(App.Vector(32.081337, -2.104759, 0), App.Vector(0, 0, 1), 0.5), math.radians(70.105251), math.radians(244.894749)),  # 16
    Part.ArcOfCircle(Part.Circle(App.Vector(27, 0, 0), App.Vector(0, 0, 1), 5.5), math.radians(-39.789497), math.radians(-27.710503)),  # 17
    Part.ArcOfCircle(Part.Circle(App.Vector(30.889087, -3.889087, 0), App.Vector(0, 0, 1), 0.5), math.radians(47.605251), math.radians(222.394749)),  # 18
    Part.ArcOfCircle(Part.Circle(App.Vector(27, 0, 0), App.Vector(0, 0, 1), 5.5), math.radians(-62.289497), math.radians(-50.210503)),  # 19
    Part.ArcOfCircle(Part.Circle(App.Vector(29.104759, -5.081337, 0), App.Vector(0, 0, 1), 0.5), math.radians(25.105251), math.radians(199.894749)),  # 20
    Part.ArcOfCircle(Part.Circle(App.Vector(27, 0, 0), App.Vector(0, 0, 1), 5.5), math.radians(-84.789497), math.radians(-72.710503)),  # 21
    Part.ArcOfCircle(Part.Circle(App.Vector(27, -5.5, 0), App.Vector(0, 0, 1), 0.5), math.radians(2.605251), math.radians(177.394749)),  # 22
    Part.ArcOfCircle(Part.Circle(App.Vector(27, 0, 0), App.Vector(0, 0, 1), 5.5), math.radians(-107.289497), math.radians(-95.210503)),  # 23
    Part.ArcOfCircle(Part.Circle(App.Vector(24.895241, -5.081337, 0), App.Vector(0, 0, 1), 0.5), math.radians(-19.894749), math.radians(154.894749)),  # 24
    Part.ArcOfCircle(Part.Circle(App.Vector(27, 0, 0), App.Vector(0, 0, 1), 5.5), math.radians(-129.789497), math.radians(-117.710503)),  # 25
    Part.ArcOfCircle(Part.Circle(App.Vector(23.110913, -3.889087, 0), App.Vector(0, 0, 1), 0.5), math.radians(-42.394749), math.radians(132.394749)),  # 26
    Part.ArcOfCircle(Part.Circle(App.Vector(27, 0, 0), App.Vector(0, 0, 1), 5.5), math.radians(-152.289497), math.radians(-140.210503)),  # 27
    Part.ArcOfCircle(Part.Circle(App.Vector(21.918663, -2.104759, 0), App.Vector(0, 0, 1), 0.5), math.radians(-64.894749), math.radians(109.894749)),  # 28
    Part.ArcOfCircle(Part.Circle(App.Vector(27, 0, 0), App.Vector(0, 0, 1), 5.5), math.radians(-174.789497), math.radians(-162.710503)),  # 29
    Part.ArcOfCircle(Part.Circle(App.Vector(21.5, 0, 0), App.Vector(0, 0, 1), 0.5), math.radians(-87.394749), math.radians(87.394749)),  # 30
    Part.ArcOfCircle(Part.Circle(App.Vector(27, 0, 0), App.Vector(0, 0, 1), 5.5), math.radians(162.710503), math.radians(174.789497)),  # 31
    Part.ArcOfCircle(Part.Circle(App.Vector(21.918663, 2.104759, 0), App.Vector(0, 0, 1), 0.5), math.radians(-109.894749), math.radians(64.894749)),  # 32
    Part.ArcOfCircle(Part.Circle(App.Vector(27, 0, 0), App.Vector(0, 0, 1), 5.5), math.radians(140.210503), math.radians(152.289497)),  # 33
    Part.ArcOfCircle(Part.Circle(App.Vector(23.110913, 3.889087, 0), App.Vector(0, 0, 1), 0.5), math.radians(-132.394749), math.radians(42.394749)),  # 34
    Part.ArcOfCircle(Part.Circle(App.Vector(27, 0, 0), App.Vector(0, 0, 1), 5.5), math.radians(117.710503), math.radians(129.789497)),  # 35
], False)
sketch4.addConstraint([
    Sketcher.Constraint("Coincident", 0, 2, 1, 1),
    Sketcher.Constraint("Coincident", 1, 2, 2, 1),
    Sketcher.Constraint("Coincident", 2, 2, 3, 1),
    Sketcher.Constraint("Coincident", 3, 2, 0, 1),
    Sketcher.Constraint("Coincident", 4, 2, 5, 2),
    Sketcher.Constraint("Coincident", 5, 1, 6, 1),
    Sketcher.Constraint("Coincident", 6, 2, 7, 2),
    Sketcher.Constraint("Coincident", 7, 1, 8, 1),
    Sketcher.Constraint("Coincident", 8, 2, 9, 2),
    Sketcher.Constraint("Coincident", 9, 1, 10, 1),
    Sketcher.Constraint("Coincident", 10, 2, 11, 2),
    Sketcher.Constraint("Coincident", 11, 1, 12, 1),
    Sketcher.Constraint("Coincident", 12, 2, 13, 2),
    Sketcher.Constraint("Coincident", 13, 1, 14, 1),
    Sketcher.Constraint("Coincident", 14, 2, 15, 2),
    Sketcher.Constraint("Coincident", 15, 1, 16, 1),
    Sketcher.Constraint("Coincident", 16, 2, 17, 2),
    Sketcher.Constraint("Coincident", 17, 1, 18, 1),
    Sketcher.Constraint("Coincident", 18, 2, 19, 2),
    Sketcher.Constraint("Coincident", 19, 1, 20, 1),
    Sketcher.Constraint("Coincident", 20, 2, 21, 2),
    Sketcher.Constraint("Coincident", 21, 1, 22, 1),
    Sketcher.Constraint("Coincident", 22, 2, 23, 2),
    Sketcher.Constraint("Coincident", 23, 1, 24, 1),
    Sketcher.Constraint("Coincident", 24, 2, 25, 2),
    Sketcher.Constraint("Coincident", 25, 1, 26, 1),
    Sketcher.Constraint("Coincident", 26, 2, 27, 2),
    Sketcher.Constraint("Coincident", 27, 1, 28, 1),
    Sketcher.Constraint("Coincident", 28, 2, 29, 2),
    Sketcher.Constraint("Coincident", 29, 1, 30, 1),
    Sketcher.Constraint("Coincident", 30, 2, 31, 2),
    Sketcher.Constraint("Coincident", 31, 1, 32, 1),
    Sketcher.Constraint("Coincident", 32, 2, 33, 2),
    Sketcher.Constraint("Coincident", 33, 1, 34, 1),
    Sketcher.Constraint("Coincident", 34, 2, 35, 2),
    Sketcher.Constraint("Coincident", 35, 1, 4, 1),
    Sketcher.Constraint("Vertical", 0),
    Sketcher.Constraint("Horizontal", 1),
    Sketcher.Constraint("Vertical", 2),
    Sketcher.Constraint("Horizontal", 3),
    Sketcher.Constraint("Coincident", 7, 3, 5, 3),
    Sketcher.Constraint("Coincident", 9, 3, 5, 3),
    Sketcher.Constraint("Coincident", 11, 3, 5, 3),
    Sketcher.Constraint("Coincident", 13, 3, 5, 3),
    Sketcher.Constraint("Coincident", 15, 3, 5, 3),
    Sketcher.Constraint("Coincident", 17, 3, 5, 3),
    Sketcher.Constraint("Coincident", 19, 3, 5, 3),
    Sketcher.Constraint("Coincident", 21, 3, 5, 3),
    Sketcher.Constraint("Coincident", 23, 3, 5, 3),
    Sketcher.Constraint("Coincident", 25, 3, 5, 3),
    Sketcher.Constraint("Coincident", 27, 3, 5, 3),
    Sketcher.Constraint("Coincident", 29, 3, 5, 3),
    Sketcher.Constraint("Coincident", 31, 3, 5, 3),
    Sketcher.Constraint("Coincident", 33, 3, 5, 3),
    Sketcher.Constraint("Coincident", 35, 3, 5, 3),
    Sketcher.Constraint("Equal", 4, 6),
    Sketcher.Constraint("Equal", 5, 7),
    Sketcher.Constraint("Equal", 6, 8),
    Sketcher.Constraint("Equal", 7, 9),
    Sketcher.Constraint("Equal", 8, 10),
    Sketcher.Constraint("Equal", 9, 11),
    Sketcher.Constraint("Equal", 10, 12),
    Sketcher.Constraint("Equal", 11, 13),
    Sketcher.Constraint("Equal", 12, 14),
    Sketcher.Constraint("Equal", 13, 15),
    Sketcher.Constraint("Equal", 14, 16),
    Sketcher.Constraint("Equal", 15, 17),
    Sketcher.Constraint("Equal", 16, 18),
    Sketcher.Constraint("Equal", 17, 19),
    Sketcher.Constraint("Equal", 18, 20),
    Sketcher.Constraint("Equal", 19, 21),
    Sketcher.Constraint("Equal", 20, 22),
    Sketcher.Constraint("Equal", 21, 23),
    Sketcher.Constraint("Equal", 22, 24),
    Sketcher.Constraint("Equal", 23, 25),
    Sketcher.Constraint("Equal", 24, 26),
    Sketcher.Constraint("Equal", 25, 27),
    Sketcher.Constraint("Equal", 26, 28),
    Sketcher.Constraint("Equal", 27, 29),
    Sketcher.Constraint("Equal", 28, 30),
    Sketcher.Constraint("Equal", 29, 31),
    Sketcher.Constraint("Equal", 30, 32),
    Sketcher.Constraint("Equal", 31, 33),
    Sketcher.Constraint("Equal", 32, 34),
    Sketcher.Constraint("Equal", 33, 35),
    Sketcher.Constraint("Symmetric", 12, 3, 16, 3, -1),
    Sketcher.Constraint("Symmetric", 10, 3, 18, 3, -1),
    Sketcher.Constraint("Symmetric", 8, 3, 20, 3, -1),
    Sketcher.Constraint("Symmetric", 6, 3, 22, 3, -1),
    Sketcher.Constraint("Symmetric", 4, 3, 24, 3, -1),
    Sketcher.Constraint("Symmetric", 28, 3, 32, 3, -1),
    Sketcher.Constraint("Symmetric", 26, 3, 34, 3, -1),
    Sketcher.Constraint("Symmetric", 13, 1, 14, 2, -1),
    Sketcher.Constraint("PointOnObject", 30, 3, -1),
    Sketcher.Constraint("Horizontal", 4, 3, 8, 3),
    Sketcher.Constraint("Horizontal", 18, 3, 26, 3),
    Sketcher.Constraint("Horizontal", 16, 3, 28, 3),
    Sketcher.Constraint("Horizontal", 5, 1, 6, 2),
    Sketcher.Constraint("Horizontal", 4, 2, 7, 1),
    Sketcher.Constraint("Horizontal", 18, 2, 25, 1),
    Sketcher.Constraint("Horizontal", 16, 2, 27, 1),
    Sketcher.Constraint("Horizontal", 14, 2, 29, 1),
    Sketcher.Constraint("Equal", 3, 0),
    Sketcher.Constraint("Radius", 4, Q("0.5 mm")),
    Sketcher.Constraint("Radius", 5, Q("5.5 mm")),
    Sketcher.Constraint("DistanceX", 1, 1, 1, 2, Q("24 mm")),
    Sketcher.Constraint("DistanceX", -1, 1, 5, 3, Q("27 mm")),
    Sketcher.Constraint("DistanceX", -1, 1, 0, 2, Q("15 mm")),
    Sketcher.Constraint("DistanceY", 0, 2, -1, 1, Q("12 mm")),
    Sketcher.Constraint("DistanceY", -1, 1, 6, 3, Q("5.5 mm")),
    Sketcher.Constraint("DistanceX", -1, 1, 14, 3, Q("32.5 mm")),
    Sketcher.Constraint("DistanceX", -1, 1, 4, 2, Q("25.365401 mm")),
    Sketcher.Constraint("DistanceY", -1, 1, 12, 2, Q("1.634599 mm")),
    Sketcher.Constraint("DistanceX", -1, 1, 4, 3, Q("24.895241 mm")),
    Sketcher.Constraint("DistanceY", -1, 1, 12, 3, Q("2.104759 mm")),
    Sketcher.Constraint("DistanceX", -1, 1, 9, 1, Q("30.519829 mm")),
    Sketcher.Constraint("DistanceY", -1, 1, 10, 2, Q("3.519829 mm")),
])
pad4 = body4.newObject("PartDesign::Pad", "Pad003")
pad4.Profile = sketch4
pad4.Type = "TwoLengths"
pad4.Length = 1
pad4.Length2 = 1
pad4.Reversed = True

doc.recompute()
